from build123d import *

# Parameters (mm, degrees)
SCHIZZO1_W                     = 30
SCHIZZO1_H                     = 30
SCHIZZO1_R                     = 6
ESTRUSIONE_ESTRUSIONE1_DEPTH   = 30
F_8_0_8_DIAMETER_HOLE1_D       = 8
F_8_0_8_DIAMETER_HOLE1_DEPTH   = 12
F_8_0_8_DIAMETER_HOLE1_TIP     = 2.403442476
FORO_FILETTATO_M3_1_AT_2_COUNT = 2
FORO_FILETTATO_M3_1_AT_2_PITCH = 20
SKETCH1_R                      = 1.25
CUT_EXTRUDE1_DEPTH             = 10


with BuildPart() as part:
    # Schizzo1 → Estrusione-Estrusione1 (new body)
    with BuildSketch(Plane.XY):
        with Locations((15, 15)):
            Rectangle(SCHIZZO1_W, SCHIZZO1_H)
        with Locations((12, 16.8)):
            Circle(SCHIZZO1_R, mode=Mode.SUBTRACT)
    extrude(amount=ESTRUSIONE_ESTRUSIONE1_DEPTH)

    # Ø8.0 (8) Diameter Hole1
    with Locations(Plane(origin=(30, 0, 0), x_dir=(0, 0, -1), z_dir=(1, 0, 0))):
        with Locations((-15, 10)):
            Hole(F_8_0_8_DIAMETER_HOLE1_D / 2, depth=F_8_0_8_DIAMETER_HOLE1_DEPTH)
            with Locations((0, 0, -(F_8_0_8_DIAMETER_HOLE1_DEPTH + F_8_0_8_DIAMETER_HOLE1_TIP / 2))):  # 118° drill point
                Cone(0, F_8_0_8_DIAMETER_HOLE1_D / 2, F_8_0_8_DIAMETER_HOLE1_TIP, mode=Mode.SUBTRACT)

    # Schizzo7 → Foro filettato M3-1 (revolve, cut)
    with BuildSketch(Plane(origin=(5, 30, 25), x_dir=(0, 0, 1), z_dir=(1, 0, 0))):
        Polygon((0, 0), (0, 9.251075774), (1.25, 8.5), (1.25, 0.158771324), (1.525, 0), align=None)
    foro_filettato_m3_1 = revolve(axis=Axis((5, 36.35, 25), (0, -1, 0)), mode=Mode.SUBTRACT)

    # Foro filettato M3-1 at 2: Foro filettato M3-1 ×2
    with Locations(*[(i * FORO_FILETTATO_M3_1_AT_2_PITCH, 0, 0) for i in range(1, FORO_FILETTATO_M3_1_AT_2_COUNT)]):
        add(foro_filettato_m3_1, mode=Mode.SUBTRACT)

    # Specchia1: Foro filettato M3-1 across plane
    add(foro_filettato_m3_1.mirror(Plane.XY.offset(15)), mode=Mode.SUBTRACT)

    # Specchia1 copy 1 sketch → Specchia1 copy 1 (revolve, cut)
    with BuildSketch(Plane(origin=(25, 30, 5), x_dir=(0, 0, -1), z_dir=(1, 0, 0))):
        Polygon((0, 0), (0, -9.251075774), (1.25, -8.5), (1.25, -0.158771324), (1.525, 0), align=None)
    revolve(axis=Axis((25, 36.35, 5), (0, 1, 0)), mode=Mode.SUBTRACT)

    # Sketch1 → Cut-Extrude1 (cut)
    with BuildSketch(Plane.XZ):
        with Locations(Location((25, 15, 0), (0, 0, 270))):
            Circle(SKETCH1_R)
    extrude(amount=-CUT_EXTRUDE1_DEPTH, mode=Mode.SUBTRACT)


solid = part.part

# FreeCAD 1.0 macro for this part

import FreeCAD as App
import Part
import Sketcher

V = App.Vector
Q = App.Units.Quantity

doc = App.newDocument("Part")
params = doc.addObject("Spreadsheet::Sheet", "Params")
for row, (alias, value) in enumerate([
    ("sketch1_diameter", "12 mm"),
    ("sketch1_width", "30 mm"),
    ("pad1_length", "30 mm"),
    ("sketch2_diameter", "8 mm"),
    ("hole_diameter", "8 mm"),
    ("hole_depth", "12 mm"),
    ("groove_angle", "360 deg"),
    ("linearpattern_pitch", "20 mm"),
    ("groove2_angle", "360 deg"),
    ("sketch5_diameter", "2.5 mm"),
    ("pocket1_length", "10 mm"),
], start=1):
    params.set(f"A{row}", alias)
    params.set(f"B{row}", "=" + value)
    params.setAlias(f"B{row}", alias)

body = doc.addObject("PartDesign::Body", "Body")

# Sketch on XY plane
sketch1 = body.newObject("Sketcher::SketchObject", "Sketch")
sketch1.AttachmentSupport = (doc.getObject("XY_Plane"), [""])
sketch1.MapMode = "FlatFace"
sketch1.addGeometry(Part.LineSegment(V(0, 30, 0), V(0, 0, 0)), False)
sketch1.addGeometry(Part.LineSegment(V(0, 0, 0), V(30, 0, 0)), False)
sketch1.addGeometry(Part.LineSegment(V(30, 0, 0), V(30, 30, 0)), False)
sketch1.addGeometry(Part.LineSegment(V(30, 30, 0), V(0, 30, 0)), False)
sketch1.addGeometry(Part.Circle(V(12, 17, 0), V(0, 0, 1), 6), False)
sketch1.addConstraint(Sketcher.Constraint("Coincident", 0, 2, 1, 1))
sketch1.addConstraint(Sketcher.Constraint("Coincident", 1, 2, 2, 1))
sketch1.addConstraint(Sketcher.Constraint("Coincident", 2, 2, 3, 1))
sketch1.addConstraint(Sketcher.Constraint("Coincident", 3, 2, 0, 1))
sketch1.addConstraint(Sketcher.Constraint("Vertical", 0))
sketch1.addConstraint(Sketcher.Constraint("Horizontal", 1))
sketch1.addConstraint(Sketcher.Constraint("Vertical", 2))
sketch1.addConstraint(Sketcher.Constraint("Horizontal", 3))
sketch1.addConstraint(Sketcher.Constraint("Coincident", 0, 2, -1, 1))
sketch1.addConstraint(Sketcher.Constraint("Equal", 3, 0))
sketch1.addConstraint(Sketcher.Constraint("Diameter", 4, Q("12 mm")))
sketch1.addConstraint(Sketcher.Constraint("DistanceX", 1, 1, 1, 2, Q("30 mm")))
sketch1.addConstraint(Sketcher.Constraint("DistanceX", -1, 1, 4, 3, Q("12 mm")))
sketch1.addConstraint(Sketcher.Constraint("DistanceY", -1, 1, 4, 3, Q("16.8 mm")))
sketch1.setExpression("Constraints[10]", "Params.sketch1_diameter")
sketch1.setExpression("Constraints[11]", "Params.sketch1_width")
pad1 = body.newObject("PartDesign::Pad", "Pad")
pad1.Profile = sketch1
pad1.setExpression("Length", "Params.pad1_length")

# Sketch on YZ plane
sketch2 = body.newObject("Sketcher::SketchObject", "Sketch001")
sketch2.AttachmentSupport = (doc.getObject("YZ_Plane"), [""])
sketch2.MapMode = "FlatFace"
sketch2.AttachmentOffset = App.Placement(V(0, 0, 30), App.Rotation())
sketch2.addGeometry(Part.Circle(V(10, 15, 0), V(0, 0, 1), 4), False)
sketch2.addConstraint(Sketcher.Constraint("Diameter", 0, Q("8 mm")))
sketch2.addConstraint(Sketcher.Constraint("DistanceX", -1, 1, 0, 3, Q("10 mm")))
sketch2.addConstraint(Sketcher.Constraint("DistanceY", -1, 1, 0, 3, Q("15 mm")))
sketch2.setExpression("Constraints[0]", "Params.sketch2_diameter")
doc.recompute()
hole = body.newObject("PartDesign::Hole", "Hole")
hole.Profile = sketch2
hole.ThreadType = "None"
hole.setExpression("Diameter", "Params.hole_diameter")
hole.DepthType = "Dimension"
hole.setExpression("Depth", "Params.hole_depth")
hole.DrillPoint = "Angled"
hole.DrillPointAngle = 118

# Sketch on YZ plane
sketch3 = body.newObject("Sketcher::SketchObject", "Sketch002")
sketch3.AttachmentSupport = (doc.getObject("YZ_Plane"), [""])
sketch3.MapMode = "FlatFace"
sketch3.AttachmentOffset = App.Placement(V(0, 0, 5), App.Rotation())
sketch3.addGeometry(Part.LineSegment(V(20.75, 25, 0), V(30, 25, 0)), False)
sketch3.addGeometry(Part.LineSegment(V(30, 25, 0), V(30, 26.52, 0)), False)
sketch3.addGeometry(Part.LineSegment(V(30, 26.52, 0), V(29.84, 26.25, 0)), False)
sketch3.addGeometry(Part.LineSegment(V(29.84, 26.25, 0), V(21.5, 26.25, 0)), False)
sketch3.addGeometry(Part.LineSegment(V(21.5, 26.25, 0), V(20.75, 25, 0)), False)
sketch3.addGeometry(Part.LineSegment(V(30, 25, 0), V(20.75, 25, 0)), True)  # axis
sketch3.addConstraint(Sketcher.Constraint("Coincident", 0, 2, 1, 1))
sketch3.addConstraint(Sketcher.Constraint("Coincident", 1, 2, 2, 1))
sketch3.addConstraint(Sketcher.Constraint("Coincident", 2, 2, 3, 1))
sketch3.addConstraint(Sketcher.Constraint("Coincident", 3, 2, 4, 1))
sketch3.addConstraint(Sketcher.Constraint("Coincident", 4, 2, 0, 1))
sketch3.addConstraint(Sketcher.Constraint("Horizontal", 0))
sketch3.addConstraint(Sketcher.Constraint("Vertical", 1))
sketch3.addConstraint(Sketcher.Constraint("Horizontal", 3))
sketch3.addConstraint(Sketcher.Constraint("Horizontal", 5))
sketch3.addConstraint(Sketcher.Constraint("Coincident", 5, 1, 0, 2))
sketch3.addConstraint(Sketcher.Constraint("Equal", 0, 5))
sketch3.addConstraint(Sketcher.Constraint("Angle", 2, Q("-120 deg")))
sketch3.addConstraint(Sketcher.Constraint("Angle", 4, Q("-121 deg")))
sketch3.addConstraint(Sketcher.Constraint("DistanceX", -1, 1, 0, 2, Q("30 mm")))
sketch3.addConstraint(Sketcher.Constraint("DistanceY", -1, 1, 0, 2, Q("25 mm")))
sketch3.addConstraint(Sketcher.Constraint("DistanceX", -1, 1, 3, 2, Q("21.5 mm")))
sketch3.addConstraint(Sketcher.Constraint("DistanceY", 1, 1, 1, 2, Q("1.525 mm")))
sketch3.addConstraint(Sketcher.Constraint("DistanceY", -1, 1, 2, 2, Q("26.25 mm")))
groove = body.newObject("PartDesign::Groove", "Groove")
groove.Profile = sketch3
groove.ReferenceAxis = (sketch3, ["Axis0"])
groove.setExpression("Angle", "Params.groove_angle")
doc.recompute()

linearpattern = body.newObject("PartDesign::LinearPattern", "LinearPattern")
linearpattern.Originals = [groove]
linearpattern.Direction = (doc.getObject("X_Axis"), [""])
linearpattern.Mode = "offset"
linearpattern.setExpression("Offset", "Params.linearpattern_pitch")
linearpattern.Occurrences = 2
body.Tip = linearpattern
doc.recompute()

datumplane = body.newObject("PartDesign::Plane", "DatumPlane")
datumplane.AttachmentSupport = (doc.getObject("XY_Plane"), [""])
datumplane.MapMode = "FlatFace"
datumplane.AttachmentOffset = App.Placement(V(0, 0, 15), App.Rotation())
mirrored = body.newObject("PartDesign::Mirrored", "Mirrored")
mirrored.Originals = [groove]
mirrored.MirrorPlane = (datumplane, [""])
body.Tip = mirrored

# Sketch on YZ plane
sketch4 = body.newObject("Sketcher::SketchObject", "Sketch003")
sketch4.AttachmentSupport = (doc.getObject("YZ_Plane"), [""])
sketch4.MapMode = "FlatFace"
sketch4.AttachmentOffset = App.Placement(V(0, 0, 25), App.Rotation())
sketch4.addGeometry(Part.LineSegment(V(30, 5, 0), V(20.75, 5, 0)), False)
sketch4.addGeometry(Part.LineSegment(V(20.75, 5, 0), V(21.5, 3.75, 0)), False)
sketch4.addGeometry(Part.LineSegment(V(21.5, 3.75, 0), V(29.84, 3.75, 0)), False)
sketch4.addGeometry(Part.LineSegment(V(29.84, 3.75, 0), V(30, 3.48, 0)), False)
sketch4.addGeometry(Part.LineSegment(V(30, 3.48, 0), V(30, 5, 0)), False)
sketch4.addGeometry(Part.LineSegment(V(20.75, 5, 0), V(30, 5, 0)), True)  # axis
sketch4.addConstraint(Sketcher.Constraint("Coincident", 0, 2, 1, 1))
sketch4.addConstraint(Sketcher.Constraint("Coincident", 1, 2, 2, 1))
sketch4.addConstraint(Sketcher.Constraint("Coincident", 2, 2, 3, 1))
sketch4.addConstraint(Sketcher.Constraint("Coincident", 3, 2, 4, 1))
sketch4.addConstraint(Sketcher.Constraint("Coincident", 4, 2, 0, 1))
sketch4.addConstraint(Sketcher.Constraint("Horizontal", 0))
sketch4.addConstraint(Sketcher.Constraint("Horizontal", 2))
sketch4.addConstraint(Sketcher.Constraint("Vertical", 4))
sketch4.addConstraint(Sketcher.Constraint("Horizontal", 5))
sketch4.addConstraint(Sketcher.Constraint("Coincident", 5, 1, 0, 2))
sketch4.addConstraint(Sketcher.Constraint("Vertical", 3, 2, 5, 2))
sketch4.addConstraint(Sketcher.Constraint("Angle", 1, Q("-59 deg")))
sketch4.addConstraint(Sketcher.Constraint("Angle", 3, Q("-60 deg")))
sketch4.addConstraint(Sketcher.Constraint("DistanceY", -1, 1, 0, 2, Q("5 mm")))
sketch4.addConstraint(Sketcher.Constraint("DistanceX", -1, 1, 3, 2, Q("30 mm")))
sketch4.addConstraint(Sketcher.Constraint("DistanceX", -1, 1, 1, 2, Q("21.5 mm")))
sketch4.addConstraint(Sketcher.Constraint("DistanceY", 4, 1, 4, 2, Q("1.525 mm")))
sketch4.addConstraint(Sketcher.Constraint("DistanceY", -1, 1, 1, 2, Q("3.75 mm")))
groove2 = body.newObject("PartDesign::Groove", "Groove001")
groove2.Profile = sketch4
groove2.ReferenceAxis = (sketch4, ["Axis0"])
groove2.setExpression("Angle", "Params.groove2_angle")

# Sketch on XZ plane
sketch5 = body.newObject("Sketcher::SketchObject", "Sketch004")
sketch5.AttachmentSupport = (doc.getObject("XZ_Plane"), [""])
sketch5.MapMode = "FlatFace"
sketch5.addGeometry(Part.Circle(V(25, 15, 0), V(0, 0, 1), 1.2), False)
sketch5.addConstraint(Sketcher.Constraint("Diameter", 0, Q("2.5 mm")))
sketch5.addConstraint(Sketcher.Constraint("DistanceX", -1, 1, 0, 3, Q("25 mm")))
sketch5.addConstraint(Sketcher.Constraint("DistanceY", -1, 1, 0, 3, Q("15 mm")))
sketch5.setExpression("Constraints[0]", "Params.sketch5_diameter")
pocket1 = body.newObject("PartDesign::Pocket", "Pocket")
pocket1.Profile = sketch5
pocket1.setExpression("Length", "Params.pocket1_length")

doc.recompute()
